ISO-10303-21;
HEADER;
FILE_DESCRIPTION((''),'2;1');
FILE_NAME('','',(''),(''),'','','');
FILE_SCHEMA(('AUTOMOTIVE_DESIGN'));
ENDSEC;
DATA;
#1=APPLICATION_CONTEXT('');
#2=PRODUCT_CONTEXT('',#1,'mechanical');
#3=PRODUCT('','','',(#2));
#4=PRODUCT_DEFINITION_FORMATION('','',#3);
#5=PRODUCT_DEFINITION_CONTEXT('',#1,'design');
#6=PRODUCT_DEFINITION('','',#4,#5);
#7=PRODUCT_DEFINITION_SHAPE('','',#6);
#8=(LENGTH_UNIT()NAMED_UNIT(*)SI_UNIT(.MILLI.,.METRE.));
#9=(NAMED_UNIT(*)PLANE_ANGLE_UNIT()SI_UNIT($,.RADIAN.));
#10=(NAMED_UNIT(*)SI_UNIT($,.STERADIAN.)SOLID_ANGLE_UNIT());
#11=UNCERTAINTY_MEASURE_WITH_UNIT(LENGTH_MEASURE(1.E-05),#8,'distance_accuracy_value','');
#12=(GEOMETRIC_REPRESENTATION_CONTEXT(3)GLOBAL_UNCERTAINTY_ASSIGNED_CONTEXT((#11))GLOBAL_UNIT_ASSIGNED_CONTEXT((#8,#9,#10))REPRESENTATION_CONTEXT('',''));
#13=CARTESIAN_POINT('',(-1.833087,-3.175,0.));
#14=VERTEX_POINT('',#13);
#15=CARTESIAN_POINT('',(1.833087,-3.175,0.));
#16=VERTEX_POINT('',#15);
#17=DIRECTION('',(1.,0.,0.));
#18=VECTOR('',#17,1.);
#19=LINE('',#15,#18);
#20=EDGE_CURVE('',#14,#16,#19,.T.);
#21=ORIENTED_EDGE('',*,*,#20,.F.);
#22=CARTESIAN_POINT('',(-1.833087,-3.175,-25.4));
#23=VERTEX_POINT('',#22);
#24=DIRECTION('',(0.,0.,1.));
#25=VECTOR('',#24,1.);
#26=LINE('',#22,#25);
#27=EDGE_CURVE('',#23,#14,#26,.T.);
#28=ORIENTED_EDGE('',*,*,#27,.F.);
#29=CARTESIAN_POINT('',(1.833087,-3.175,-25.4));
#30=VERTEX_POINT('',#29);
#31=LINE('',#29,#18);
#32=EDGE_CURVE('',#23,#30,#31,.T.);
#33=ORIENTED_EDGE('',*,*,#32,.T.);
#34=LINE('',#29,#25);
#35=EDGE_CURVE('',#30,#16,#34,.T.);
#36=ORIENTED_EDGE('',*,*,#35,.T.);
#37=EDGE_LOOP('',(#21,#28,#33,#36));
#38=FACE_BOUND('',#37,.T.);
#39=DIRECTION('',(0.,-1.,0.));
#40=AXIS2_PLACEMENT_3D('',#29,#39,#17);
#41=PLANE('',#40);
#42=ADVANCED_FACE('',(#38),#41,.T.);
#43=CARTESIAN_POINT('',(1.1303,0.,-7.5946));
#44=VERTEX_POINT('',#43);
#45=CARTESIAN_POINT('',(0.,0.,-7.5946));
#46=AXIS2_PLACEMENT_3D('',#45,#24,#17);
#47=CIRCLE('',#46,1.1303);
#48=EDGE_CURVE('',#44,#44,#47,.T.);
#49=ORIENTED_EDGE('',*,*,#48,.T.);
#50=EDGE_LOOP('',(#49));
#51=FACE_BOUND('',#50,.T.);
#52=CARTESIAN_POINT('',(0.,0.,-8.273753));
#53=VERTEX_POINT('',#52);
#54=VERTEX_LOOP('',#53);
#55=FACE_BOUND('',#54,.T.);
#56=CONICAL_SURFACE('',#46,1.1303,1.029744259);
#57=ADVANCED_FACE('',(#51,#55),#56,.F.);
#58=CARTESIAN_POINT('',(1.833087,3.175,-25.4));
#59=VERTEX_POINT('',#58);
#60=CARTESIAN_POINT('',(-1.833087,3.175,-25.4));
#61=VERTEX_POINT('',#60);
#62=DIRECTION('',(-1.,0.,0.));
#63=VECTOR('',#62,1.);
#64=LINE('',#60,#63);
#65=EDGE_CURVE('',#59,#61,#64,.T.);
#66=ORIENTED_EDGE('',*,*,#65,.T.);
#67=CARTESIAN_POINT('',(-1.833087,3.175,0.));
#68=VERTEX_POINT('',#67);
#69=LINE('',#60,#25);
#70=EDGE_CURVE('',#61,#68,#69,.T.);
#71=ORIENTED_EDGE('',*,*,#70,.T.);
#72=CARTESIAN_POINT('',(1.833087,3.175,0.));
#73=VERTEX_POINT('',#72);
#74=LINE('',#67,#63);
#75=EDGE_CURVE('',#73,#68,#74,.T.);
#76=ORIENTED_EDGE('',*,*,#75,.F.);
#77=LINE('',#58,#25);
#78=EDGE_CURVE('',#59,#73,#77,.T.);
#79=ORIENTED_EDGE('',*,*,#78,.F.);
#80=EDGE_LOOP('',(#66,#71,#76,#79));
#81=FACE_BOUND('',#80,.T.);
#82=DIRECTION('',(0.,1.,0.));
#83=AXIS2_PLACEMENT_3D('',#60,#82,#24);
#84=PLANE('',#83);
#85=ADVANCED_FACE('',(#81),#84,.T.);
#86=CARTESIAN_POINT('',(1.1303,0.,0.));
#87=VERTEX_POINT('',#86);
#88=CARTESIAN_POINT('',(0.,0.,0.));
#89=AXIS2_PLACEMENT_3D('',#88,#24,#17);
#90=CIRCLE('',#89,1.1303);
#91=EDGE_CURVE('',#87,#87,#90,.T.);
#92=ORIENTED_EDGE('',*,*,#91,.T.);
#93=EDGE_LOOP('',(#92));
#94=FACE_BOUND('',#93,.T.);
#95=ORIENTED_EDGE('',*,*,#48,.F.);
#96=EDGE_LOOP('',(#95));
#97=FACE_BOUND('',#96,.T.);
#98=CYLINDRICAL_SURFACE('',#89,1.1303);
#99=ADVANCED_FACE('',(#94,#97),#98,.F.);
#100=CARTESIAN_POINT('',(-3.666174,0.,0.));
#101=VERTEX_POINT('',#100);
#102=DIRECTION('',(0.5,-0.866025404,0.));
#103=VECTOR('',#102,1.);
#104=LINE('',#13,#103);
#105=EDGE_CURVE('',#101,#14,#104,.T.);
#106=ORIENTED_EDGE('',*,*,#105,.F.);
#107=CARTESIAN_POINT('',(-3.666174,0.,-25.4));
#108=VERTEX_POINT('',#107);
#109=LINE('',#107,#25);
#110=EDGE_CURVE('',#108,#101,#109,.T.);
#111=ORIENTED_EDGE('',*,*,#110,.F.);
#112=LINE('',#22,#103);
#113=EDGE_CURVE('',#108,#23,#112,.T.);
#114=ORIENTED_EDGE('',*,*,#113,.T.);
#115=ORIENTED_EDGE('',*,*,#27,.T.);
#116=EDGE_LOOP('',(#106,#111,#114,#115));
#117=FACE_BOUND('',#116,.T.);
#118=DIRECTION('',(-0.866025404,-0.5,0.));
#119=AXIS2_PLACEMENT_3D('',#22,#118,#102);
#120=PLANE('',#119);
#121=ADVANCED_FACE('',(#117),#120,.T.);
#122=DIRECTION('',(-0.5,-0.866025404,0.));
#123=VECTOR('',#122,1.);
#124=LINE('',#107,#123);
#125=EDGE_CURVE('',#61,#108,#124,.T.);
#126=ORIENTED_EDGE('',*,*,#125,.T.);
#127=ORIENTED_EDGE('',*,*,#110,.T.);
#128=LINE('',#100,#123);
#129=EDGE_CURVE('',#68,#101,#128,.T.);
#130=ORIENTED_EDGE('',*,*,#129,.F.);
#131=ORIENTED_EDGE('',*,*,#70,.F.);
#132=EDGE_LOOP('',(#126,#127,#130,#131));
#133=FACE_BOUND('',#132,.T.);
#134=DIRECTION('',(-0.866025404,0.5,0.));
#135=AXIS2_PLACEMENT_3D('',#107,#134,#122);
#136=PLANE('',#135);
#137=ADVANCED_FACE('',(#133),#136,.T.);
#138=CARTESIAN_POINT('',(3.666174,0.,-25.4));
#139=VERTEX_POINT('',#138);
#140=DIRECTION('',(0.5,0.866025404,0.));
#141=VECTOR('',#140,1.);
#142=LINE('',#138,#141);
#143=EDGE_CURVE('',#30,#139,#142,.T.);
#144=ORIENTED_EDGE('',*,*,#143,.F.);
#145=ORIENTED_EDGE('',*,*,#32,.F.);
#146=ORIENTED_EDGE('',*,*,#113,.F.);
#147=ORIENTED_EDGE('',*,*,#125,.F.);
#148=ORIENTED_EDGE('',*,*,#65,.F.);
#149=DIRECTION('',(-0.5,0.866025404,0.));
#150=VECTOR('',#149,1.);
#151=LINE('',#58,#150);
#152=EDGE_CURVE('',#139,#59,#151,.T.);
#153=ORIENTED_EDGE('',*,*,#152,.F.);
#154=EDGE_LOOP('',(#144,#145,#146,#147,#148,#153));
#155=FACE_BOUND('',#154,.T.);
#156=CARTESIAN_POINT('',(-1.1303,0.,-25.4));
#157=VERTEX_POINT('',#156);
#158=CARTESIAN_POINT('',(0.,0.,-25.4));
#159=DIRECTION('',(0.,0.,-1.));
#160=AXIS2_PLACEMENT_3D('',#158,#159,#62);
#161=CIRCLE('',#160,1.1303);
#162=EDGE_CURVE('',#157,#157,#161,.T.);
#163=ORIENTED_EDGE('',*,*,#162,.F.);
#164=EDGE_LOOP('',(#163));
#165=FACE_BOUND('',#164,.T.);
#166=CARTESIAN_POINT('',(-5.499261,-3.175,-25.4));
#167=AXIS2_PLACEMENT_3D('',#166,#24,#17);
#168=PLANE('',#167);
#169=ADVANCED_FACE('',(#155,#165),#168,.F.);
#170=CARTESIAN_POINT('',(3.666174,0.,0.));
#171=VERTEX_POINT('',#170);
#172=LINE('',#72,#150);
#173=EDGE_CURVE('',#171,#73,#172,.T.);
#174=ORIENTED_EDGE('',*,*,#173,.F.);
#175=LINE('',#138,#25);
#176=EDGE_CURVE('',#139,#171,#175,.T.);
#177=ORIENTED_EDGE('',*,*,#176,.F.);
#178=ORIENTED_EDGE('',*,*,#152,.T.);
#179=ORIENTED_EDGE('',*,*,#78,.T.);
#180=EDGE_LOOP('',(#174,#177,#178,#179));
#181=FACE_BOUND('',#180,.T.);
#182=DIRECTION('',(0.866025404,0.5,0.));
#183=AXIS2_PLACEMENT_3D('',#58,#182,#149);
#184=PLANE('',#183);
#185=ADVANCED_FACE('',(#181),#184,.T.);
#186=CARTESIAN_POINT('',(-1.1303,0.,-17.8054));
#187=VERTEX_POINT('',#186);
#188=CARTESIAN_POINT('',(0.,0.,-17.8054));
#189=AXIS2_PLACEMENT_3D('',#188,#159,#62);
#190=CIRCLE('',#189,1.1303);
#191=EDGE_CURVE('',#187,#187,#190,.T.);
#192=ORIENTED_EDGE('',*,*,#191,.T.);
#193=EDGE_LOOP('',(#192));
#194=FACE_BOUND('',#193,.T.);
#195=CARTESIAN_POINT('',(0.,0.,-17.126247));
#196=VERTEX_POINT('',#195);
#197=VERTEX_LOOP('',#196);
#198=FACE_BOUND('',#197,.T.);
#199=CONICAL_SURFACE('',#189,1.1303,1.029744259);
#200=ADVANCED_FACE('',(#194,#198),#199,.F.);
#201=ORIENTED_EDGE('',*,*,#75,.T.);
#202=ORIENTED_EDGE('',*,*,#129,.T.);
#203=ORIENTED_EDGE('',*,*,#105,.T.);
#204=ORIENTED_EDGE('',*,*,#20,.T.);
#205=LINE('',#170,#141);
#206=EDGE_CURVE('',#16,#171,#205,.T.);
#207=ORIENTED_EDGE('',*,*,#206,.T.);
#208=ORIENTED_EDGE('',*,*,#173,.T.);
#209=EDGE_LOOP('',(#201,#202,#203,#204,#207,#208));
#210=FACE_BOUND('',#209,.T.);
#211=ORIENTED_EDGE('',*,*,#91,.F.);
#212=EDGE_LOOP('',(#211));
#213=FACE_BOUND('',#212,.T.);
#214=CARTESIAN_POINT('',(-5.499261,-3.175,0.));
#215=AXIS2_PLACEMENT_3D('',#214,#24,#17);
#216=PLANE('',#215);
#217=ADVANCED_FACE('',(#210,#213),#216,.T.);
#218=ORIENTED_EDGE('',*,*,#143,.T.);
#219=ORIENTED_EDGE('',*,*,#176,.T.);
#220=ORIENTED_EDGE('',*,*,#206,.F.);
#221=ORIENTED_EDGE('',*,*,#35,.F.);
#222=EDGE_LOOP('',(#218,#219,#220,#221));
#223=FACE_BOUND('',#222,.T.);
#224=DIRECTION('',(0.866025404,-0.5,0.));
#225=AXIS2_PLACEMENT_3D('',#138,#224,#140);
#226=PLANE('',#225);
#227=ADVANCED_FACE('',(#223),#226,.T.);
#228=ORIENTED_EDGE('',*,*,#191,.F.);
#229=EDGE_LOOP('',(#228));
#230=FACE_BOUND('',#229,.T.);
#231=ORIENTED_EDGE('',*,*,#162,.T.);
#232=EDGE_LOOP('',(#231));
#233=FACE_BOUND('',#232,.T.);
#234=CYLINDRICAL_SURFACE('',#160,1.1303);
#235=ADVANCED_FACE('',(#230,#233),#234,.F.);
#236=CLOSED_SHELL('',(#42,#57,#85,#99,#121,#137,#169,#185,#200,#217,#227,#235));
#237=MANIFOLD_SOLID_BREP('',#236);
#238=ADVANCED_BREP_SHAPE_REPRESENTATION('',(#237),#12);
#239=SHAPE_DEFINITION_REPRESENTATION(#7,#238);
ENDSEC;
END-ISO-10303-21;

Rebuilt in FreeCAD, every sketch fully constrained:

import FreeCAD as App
import Part
import Sketcher

V = App.Vector
Q = App.Units.Quantity


def add_polygon(sketch, points):
    """Adds a closed chain of lines whose ends are joined by coincident constraints."""
    first, n = sketch.GeometryCount, len(points)
    for a, b in zip(points, points[1:] + points[:1]):
        sketch.addGeometry(Part.LineSegment(App.Vector(*a, 0), App.Vector(*b, 0)), False)
    for i in range(n):
        sketch.addConstraint(Sketcher.Constraint("Coincident", first + i, 2, first + (i + 1) % n, 1))

doc = App.newDocument("Part")
params = doc.addObject("Spreadsheet::Sheet", "Params")
for row, (alias, value) in enumerate([
    ("pad1_length", "1 in"),
    ("sketch2_diameter", "0.089 in"),
    ("hole_diameter", "0.089 in"),
    ("hole_depth", "0.299 in"),
    ("sketch3_diameter", "0.089 in"),
    ("hole2_diameter", "0.089 in"),
    ("hole2_depth", "0.299 in"),
], start=1):
    params.set(f"A{row}", alias)
    params.set(f"B{row}", "=" + value)
    params.setAlias(f"B{row}", alias)

body = doc.addObject("PartDesign::Body", "Body")

sketch1 = body.newObject("Sketcher::SketchObject", "Sketch")
sketch1.AttachmentSupport = (doc.getObject("XY_Plane"), [""])
sketch1.MapMode = "FlatFace"
add_polygon(sketch1, [(1.8, 3.2), (-1.8, 3.2), (-3.7, 0), (-1.8, -3.2), (1.8, -3.2), (3.7, 0)])
sketch1.addConstraint(Sketcher.Constraint("Horizontal", 0))
sketch1.addConstraint(Sketcher.Constraint("Horizontal", 3))
sketch1.addConstraint(Sketcher.Constraint("Symmetric", 0, 2, 3, 2, -1, 1))
sketch1.addConstraint(Sketcher.Constraint("Symmetric", 1, 2, 4, 2, -1, 1))
sketch1.addConstraint(Sketcher.Constraint("PointOnObject", 1, 2, -1))
sketch1.addConstraint(Sketcher.Constraint("Parallel", 2, 5))
sketch1.addConstraint(Sketcher.Constraint("Vertical", 0, 2, 2, 2))
sketch1.addConstraint(Sketcher.Constraint("Angle", 1, Q("-120 deg")))
sketch1.addConstraint(Sketcher.Constraint("DistanceY", 2, 2, 0, 2, Q("0.25 in")))
sketch1.addConstraint(Sketcher.Constraint("DistanceX", 0, 2, 0, 1, 3.666174))
pad1 = body.newObject("PartDesign::Pad", "Pad")
pad1.Profile = sketch1
pad1.setExpression("Length", "Params.pad1_length")
pad1.Reversed = True

sketch2 = body.newObject("Sketcher::SketchObject", "Sketch001")
sketch2.AttachmentSupport = (doc.getObject("XY_Plane"), [""])
sketch2.MapMode = "FlatFace"
sketch2.addGeometry(Part.Circle(V(0, 0, 0), V(0, 0, 1), 1.1), False)
sketch2.addConstraint(Sketcher.Constraint("Coincident", 0, 3, -1, 1))
sketch2.addConstraint(Sketcher.Constraint("Diameter", 0, Q("0.089 in")))
sketch2.setExpression("Constraints[1]", "Params.sketch2_diameter")
doc.recompute()
hole = body.newObject("PartDesign::Hole", "Hole")
hole.Profile = sketch2
hole.ThreadType = "None"
hole.setExpression("Diameter", "Params.hole_diameter")
hole.DepthType = "Dimension"
hole.setExpression("Depth", "Params.hole_depth")
hole.DrillPoint = "Angled"
hole.DrillPointAngle = 118

sketch3 = body.newObject("Sketcher::SketchObject", "Sketch002")
sketch3.AttachmentSupport = (doc.getObject("XY_Plane"), [""])
sketch3.MapMode = "FlatFace"
sketch3.AttachmentOffset = App.Placement(V(0, 0, -1 * 25.4), App.Rotation())
sketch3.addGeometry(Part.Circle(V(0, 0, 0), V(0, 0, 1), 1.1), False)
sketch3.addConstraint(Sketcher.Constraint("Coincident", 0, 3, -1, 1))
sketch3.addConstraint(Sketcher.Constraint("Diameter", 0, Q("0.089 in")))
sketch3.setExpression("Constraints[1]", "Params.sketch3_diameter")
doc.recompute()
hole2 = body.newObject("PartDesign::Hole", "Hole001")
hole2.Profile = sketch3
hole2.ThreadType = "None"
hole2.setExpression("Diameter", "Params.hole2_diameter")
hole2.DepthType = "Dimension"
hole2.setExpression("Depth", "Params.hole2_depth")
hole2.DrillPoint = "Angled"
hole2.DrillPointAngle = 118
hole2.Reversed = True

doc.recompute()
